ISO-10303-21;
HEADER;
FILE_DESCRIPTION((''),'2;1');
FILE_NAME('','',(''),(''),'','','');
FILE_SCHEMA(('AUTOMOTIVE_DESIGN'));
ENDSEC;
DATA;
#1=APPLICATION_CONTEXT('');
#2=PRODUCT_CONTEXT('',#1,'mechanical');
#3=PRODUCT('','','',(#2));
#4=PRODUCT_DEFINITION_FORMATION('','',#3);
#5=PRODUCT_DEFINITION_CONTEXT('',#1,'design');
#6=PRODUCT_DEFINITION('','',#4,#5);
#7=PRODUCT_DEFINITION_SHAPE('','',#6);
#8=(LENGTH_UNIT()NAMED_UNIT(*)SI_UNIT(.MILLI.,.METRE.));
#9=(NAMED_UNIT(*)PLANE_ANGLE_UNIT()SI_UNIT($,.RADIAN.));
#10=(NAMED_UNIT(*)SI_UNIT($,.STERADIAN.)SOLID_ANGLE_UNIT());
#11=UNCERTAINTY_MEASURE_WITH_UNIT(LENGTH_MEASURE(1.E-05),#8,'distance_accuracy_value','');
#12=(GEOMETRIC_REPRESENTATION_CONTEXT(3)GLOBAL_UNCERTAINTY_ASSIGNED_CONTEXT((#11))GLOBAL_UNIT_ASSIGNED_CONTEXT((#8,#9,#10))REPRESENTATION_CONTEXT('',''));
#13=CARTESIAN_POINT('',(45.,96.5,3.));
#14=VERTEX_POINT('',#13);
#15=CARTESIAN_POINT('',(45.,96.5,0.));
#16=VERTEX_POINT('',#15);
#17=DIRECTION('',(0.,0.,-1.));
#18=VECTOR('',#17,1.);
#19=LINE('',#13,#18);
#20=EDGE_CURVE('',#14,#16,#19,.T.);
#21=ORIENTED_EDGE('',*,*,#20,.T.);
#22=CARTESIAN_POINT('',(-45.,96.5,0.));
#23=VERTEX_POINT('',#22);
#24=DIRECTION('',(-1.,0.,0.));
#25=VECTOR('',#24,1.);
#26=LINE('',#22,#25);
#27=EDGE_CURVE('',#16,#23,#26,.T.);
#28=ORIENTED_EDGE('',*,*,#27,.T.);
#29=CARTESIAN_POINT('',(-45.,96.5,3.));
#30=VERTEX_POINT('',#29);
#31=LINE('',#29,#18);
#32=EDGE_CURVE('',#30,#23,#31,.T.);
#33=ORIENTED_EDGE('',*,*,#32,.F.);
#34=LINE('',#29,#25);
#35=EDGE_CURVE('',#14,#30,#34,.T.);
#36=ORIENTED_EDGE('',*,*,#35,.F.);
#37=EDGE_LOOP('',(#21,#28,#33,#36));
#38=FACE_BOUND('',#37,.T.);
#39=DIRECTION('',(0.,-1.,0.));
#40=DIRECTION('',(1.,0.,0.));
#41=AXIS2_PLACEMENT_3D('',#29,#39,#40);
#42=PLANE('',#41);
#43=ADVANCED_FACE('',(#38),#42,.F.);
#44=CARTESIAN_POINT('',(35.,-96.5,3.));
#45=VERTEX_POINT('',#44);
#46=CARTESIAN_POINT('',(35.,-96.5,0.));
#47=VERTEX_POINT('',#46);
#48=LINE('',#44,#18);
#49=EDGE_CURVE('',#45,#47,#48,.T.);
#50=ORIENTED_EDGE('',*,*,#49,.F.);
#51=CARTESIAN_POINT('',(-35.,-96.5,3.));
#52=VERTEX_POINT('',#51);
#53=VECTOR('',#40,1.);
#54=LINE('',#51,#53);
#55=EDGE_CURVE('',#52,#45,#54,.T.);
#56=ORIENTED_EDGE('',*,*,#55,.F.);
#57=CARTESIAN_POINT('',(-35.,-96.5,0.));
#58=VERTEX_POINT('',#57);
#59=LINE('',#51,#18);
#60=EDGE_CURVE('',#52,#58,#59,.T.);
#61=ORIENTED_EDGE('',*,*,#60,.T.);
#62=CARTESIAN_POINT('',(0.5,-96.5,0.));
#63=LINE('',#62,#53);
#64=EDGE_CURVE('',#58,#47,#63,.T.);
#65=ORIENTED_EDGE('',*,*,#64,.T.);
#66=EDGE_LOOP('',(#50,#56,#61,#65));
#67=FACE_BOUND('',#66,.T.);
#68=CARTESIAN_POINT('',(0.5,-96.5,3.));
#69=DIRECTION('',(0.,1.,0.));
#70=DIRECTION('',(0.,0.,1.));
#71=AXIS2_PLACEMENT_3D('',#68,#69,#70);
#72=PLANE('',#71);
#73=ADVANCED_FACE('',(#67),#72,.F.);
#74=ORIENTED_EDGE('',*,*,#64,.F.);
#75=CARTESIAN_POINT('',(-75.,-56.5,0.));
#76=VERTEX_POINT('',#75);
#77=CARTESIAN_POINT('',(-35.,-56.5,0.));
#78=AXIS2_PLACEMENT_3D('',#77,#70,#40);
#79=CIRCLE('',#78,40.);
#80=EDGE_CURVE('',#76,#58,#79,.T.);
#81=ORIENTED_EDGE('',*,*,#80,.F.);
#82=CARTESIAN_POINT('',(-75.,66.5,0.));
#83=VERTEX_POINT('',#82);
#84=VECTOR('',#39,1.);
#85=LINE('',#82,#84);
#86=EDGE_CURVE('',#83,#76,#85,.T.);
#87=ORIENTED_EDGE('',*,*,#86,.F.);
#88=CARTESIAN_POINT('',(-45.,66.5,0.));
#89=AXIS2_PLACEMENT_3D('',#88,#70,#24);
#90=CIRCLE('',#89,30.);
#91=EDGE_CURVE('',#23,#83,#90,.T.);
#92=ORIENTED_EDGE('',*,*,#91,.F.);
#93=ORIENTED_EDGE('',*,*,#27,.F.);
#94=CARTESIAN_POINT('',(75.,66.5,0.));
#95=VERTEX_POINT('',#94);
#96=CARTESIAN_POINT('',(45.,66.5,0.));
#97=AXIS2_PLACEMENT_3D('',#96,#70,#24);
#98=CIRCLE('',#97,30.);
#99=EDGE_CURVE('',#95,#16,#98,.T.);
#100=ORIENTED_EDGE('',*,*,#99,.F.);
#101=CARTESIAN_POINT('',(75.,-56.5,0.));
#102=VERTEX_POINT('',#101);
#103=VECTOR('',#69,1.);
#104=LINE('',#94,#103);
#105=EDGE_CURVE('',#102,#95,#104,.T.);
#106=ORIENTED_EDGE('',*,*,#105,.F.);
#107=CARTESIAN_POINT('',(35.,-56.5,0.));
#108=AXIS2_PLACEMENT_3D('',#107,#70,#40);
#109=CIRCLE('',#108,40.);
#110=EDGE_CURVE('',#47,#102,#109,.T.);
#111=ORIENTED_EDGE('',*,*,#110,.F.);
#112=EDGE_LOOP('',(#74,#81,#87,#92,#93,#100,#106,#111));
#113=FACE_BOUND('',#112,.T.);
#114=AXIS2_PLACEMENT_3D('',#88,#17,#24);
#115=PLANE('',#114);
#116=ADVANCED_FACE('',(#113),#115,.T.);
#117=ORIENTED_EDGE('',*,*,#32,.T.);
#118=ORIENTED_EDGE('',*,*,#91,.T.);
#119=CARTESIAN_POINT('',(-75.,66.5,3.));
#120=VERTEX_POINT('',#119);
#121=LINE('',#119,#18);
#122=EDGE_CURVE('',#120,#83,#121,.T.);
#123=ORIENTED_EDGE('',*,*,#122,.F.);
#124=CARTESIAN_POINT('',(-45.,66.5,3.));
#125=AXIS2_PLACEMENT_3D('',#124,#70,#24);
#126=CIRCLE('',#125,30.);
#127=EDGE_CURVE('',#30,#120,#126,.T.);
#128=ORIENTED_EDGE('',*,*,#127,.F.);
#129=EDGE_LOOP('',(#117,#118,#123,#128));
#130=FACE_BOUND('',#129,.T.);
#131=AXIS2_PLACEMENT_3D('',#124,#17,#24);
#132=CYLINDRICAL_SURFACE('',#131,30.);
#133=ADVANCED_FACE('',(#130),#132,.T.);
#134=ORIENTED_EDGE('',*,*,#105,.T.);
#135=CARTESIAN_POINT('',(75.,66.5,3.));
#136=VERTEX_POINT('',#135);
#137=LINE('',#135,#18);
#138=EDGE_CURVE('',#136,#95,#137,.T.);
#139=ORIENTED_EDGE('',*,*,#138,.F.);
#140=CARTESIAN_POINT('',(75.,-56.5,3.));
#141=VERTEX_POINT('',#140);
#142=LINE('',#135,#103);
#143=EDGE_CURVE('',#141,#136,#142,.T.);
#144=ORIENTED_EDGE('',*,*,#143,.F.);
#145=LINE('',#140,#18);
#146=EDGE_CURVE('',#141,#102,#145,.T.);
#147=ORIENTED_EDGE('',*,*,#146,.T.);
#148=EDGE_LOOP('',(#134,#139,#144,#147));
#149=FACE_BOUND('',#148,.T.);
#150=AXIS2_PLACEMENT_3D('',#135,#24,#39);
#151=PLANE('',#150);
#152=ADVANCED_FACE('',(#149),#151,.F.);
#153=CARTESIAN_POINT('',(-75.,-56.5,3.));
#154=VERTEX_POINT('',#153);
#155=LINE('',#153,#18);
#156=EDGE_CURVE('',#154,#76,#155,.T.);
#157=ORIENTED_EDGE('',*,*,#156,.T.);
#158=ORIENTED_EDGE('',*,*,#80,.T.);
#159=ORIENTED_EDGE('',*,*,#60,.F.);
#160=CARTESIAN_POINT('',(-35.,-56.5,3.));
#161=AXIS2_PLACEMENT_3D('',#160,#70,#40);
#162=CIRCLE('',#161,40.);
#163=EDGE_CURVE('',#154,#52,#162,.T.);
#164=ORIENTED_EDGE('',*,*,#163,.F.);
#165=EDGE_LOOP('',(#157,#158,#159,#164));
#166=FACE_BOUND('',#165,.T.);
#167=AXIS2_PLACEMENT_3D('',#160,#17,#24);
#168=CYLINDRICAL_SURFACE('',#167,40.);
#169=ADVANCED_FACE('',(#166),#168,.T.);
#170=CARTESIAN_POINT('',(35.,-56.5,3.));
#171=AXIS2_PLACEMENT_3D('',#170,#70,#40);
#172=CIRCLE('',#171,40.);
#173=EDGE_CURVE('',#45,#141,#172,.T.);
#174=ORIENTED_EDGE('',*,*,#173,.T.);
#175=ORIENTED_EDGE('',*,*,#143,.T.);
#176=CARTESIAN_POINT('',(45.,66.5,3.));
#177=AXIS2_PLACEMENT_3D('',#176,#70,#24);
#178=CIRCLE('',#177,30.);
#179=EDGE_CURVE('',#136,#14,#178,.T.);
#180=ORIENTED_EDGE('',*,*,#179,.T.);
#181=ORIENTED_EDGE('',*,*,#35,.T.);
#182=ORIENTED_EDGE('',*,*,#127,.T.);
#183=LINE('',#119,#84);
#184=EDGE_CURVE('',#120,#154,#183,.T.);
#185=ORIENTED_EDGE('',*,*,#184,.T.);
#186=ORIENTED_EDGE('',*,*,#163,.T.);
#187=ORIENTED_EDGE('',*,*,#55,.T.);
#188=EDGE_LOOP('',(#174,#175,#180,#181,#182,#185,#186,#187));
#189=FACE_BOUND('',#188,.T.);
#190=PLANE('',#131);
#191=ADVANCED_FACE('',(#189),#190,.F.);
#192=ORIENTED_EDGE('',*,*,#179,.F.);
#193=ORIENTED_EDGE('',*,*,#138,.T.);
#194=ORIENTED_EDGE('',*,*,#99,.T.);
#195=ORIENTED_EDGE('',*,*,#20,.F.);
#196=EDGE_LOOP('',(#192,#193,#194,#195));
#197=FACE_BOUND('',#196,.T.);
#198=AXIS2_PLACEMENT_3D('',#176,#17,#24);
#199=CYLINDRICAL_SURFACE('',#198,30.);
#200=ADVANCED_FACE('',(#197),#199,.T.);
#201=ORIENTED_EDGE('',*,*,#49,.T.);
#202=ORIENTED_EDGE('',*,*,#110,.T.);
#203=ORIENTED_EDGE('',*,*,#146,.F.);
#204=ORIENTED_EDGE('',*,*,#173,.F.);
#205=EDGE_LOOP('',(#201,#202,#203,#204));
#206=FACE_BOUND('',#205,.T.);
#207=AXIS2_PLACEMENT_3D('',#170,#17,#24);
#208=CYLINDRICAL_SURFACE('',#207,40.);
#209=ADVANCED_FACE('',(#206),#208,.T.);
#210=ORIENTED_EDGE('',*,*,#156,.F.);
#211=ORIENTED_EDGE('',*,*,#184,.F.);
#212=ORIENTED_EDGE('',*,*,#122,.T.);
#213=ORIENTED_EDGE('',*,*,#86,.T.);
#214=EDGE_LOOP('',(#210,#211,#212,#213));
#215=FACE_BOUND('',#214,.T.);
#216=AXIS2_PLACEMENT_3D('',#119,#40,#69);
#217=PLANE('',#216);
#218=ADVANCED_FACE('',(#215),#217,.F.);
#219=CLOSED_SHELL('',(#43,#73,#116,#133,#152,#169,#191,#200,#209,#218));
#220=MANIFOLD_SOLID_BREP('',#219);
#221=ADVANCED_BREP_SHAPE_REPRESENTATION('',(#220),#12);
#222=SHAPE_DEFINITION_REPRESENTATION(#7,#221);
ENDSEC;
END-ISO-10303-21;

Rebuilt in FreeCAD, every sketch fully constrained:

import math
import FreeCAD as App
import Part
import Sketcher

V = App.Vector

doc = App.newDocument("Part")
params = doc.addObject("Spreadsheet::Sheet", "Params")
for row, (alias, value) in enumerate([
    ("sketch1_radius", "30 mm"),
    ("sketch1_radius2", "40 mm"),
    ("sketch1_width", "90 mm"),
    ("sketch1_height", "123 mm"),
    ("pad1_length", "3 mm"),
], start=1):
    params.set(f"A{row}", alias)
    params.set(f"B{row}", "=" + value)
    params.setAlias(f"B{row}", alias)

body = doc.addObject("PartDesign::Body", "Body")

# Sketch on XY plane
sketch1 = body.newObject("Sketcher::SketchObject", "Sketch")
sketch1.AttachmentSupport = (doc.getObject("XY_Plane"), [""])
sketch1.MapMode = "FlatFace"
sketch1.addGeometry(Part.LineSegment(V(45, 96, 0), V(-45, 96, 0)), False)
sketch1.addGeometry(Part.ArcOfCircle(Part.Circle(V(-45, 67, 0), V(0, 0, 1), 30), math.radians(90), math.radians(180)), False)
sketch1.addGeometry(Part.LineSegment(V(-75, 66, 0), V(-75, -56, 0)), False)
sketch1.addGeometry(Part.ArcOfCircle(Part.Circle(V(-35, -56, 0), V(0, 0, 1), 40), math.radians(-180), math.radians(-90)), False)
sketch1.addGeometry(Part.LineSegment(V(-35, -96, 0), V(35, -96, 0)), False)
sketch1.addGeometry(Part.ArcOfCircle(Part.Circle(V(35, -56, 0), V(0, 0, 1), 40), math.radians(-90), math.radians(0)), False)
sketch1.addGeometry(Part.LineSegment(V(75, -56, 0), V(75, 66, 0)), False)
sketch1.addGeometry(Part.ArcOfCircle(Part.Circle(V(45, 67, 0), V(0, 0, 1), 30), math.radians(0), math.radians(90)), False)
sketch1.addConstraint(Sketcher.Constraint("Tangent", 0, 2, 1, 1))
sketch1.addConstraint(Sketcher.Constraint("Tangent", 1, 2, 2, 1))
sketch1.addConstraint(Sketcher.Constraint("Tangent", 2, 2, 3, 1))
sketch1.addConstraint(Sketcher.Constraint("Tangent", 3, 2, 4, 1))
sketch1.addConstraint(Sketcher.Constraint("Tangent", 4, 2, 5, 1))
sketch1.addConstraint(Sketcher.Constraint("Tangent", 5, 2, 6, 1))
sketch1.addConstraint(Sketcher.Constraint("Tangent", 6, 2, 7, 1))
sketch1.addConstraint(Sketcher.Constraint("Tangent", 7, 2, 0, 1))
sketch1.addConstraint(Sketcher.Constraint("Horizontal", 0))
sketch1.addConstraint(Sketcher.Constraint("Vertical", 2))
sketch1.addConstraint(Sketcher.Constraint("Horizontal", 4))
sketch1.addConstraint(Sketcher.Constraint("Vertical", 6))
sketch1.addConstraint(Sketcher.Constraint("Equal", 3, 5))
sketch1.addConstraint(Sketcher.Constraint("Equal", 1, 7))
sketch1.addConstraint(Sketcher.Constraint("Radius", 1, 30.0))
sketch1.addConstraint(Sketcher.Constraint("Radius", 3, 40.0))
sketch1.addConstraint(Sketcher.Constraint("DistanceX", 0, 2, 0, 1, 90.0))
sketch1.addConstraint(Sketcher.Constraint("DistanceY", 2, 2, 2, 1, 123.0))
sketch1.addConstraint(Sketcher.Constraint("DistanceX", 1, 3, -1, 1, 45.0))
sketch1.addConstraint(Sketcher.Constraint("DistanceY", -1, 1, 1, 3, 66.5))
sketch1.setExpression("Constraints[14]", "Params.sketch1_radius")
sketch1.setExpression("Constraints[15]", "Params.sketch1_radius2")
sketch1.setExpression("Constraints[16]", "Params.sketch1_width")
sketch1.setExpression("Constraints[17]", "Params.sketch1_height")
pad1 = body.newObject("PartDesign::Pad", "Pad")
pad1.Profile = sketch1
pad1.setExpression("Length", "Params.pad1_length")

doc.recompute()
